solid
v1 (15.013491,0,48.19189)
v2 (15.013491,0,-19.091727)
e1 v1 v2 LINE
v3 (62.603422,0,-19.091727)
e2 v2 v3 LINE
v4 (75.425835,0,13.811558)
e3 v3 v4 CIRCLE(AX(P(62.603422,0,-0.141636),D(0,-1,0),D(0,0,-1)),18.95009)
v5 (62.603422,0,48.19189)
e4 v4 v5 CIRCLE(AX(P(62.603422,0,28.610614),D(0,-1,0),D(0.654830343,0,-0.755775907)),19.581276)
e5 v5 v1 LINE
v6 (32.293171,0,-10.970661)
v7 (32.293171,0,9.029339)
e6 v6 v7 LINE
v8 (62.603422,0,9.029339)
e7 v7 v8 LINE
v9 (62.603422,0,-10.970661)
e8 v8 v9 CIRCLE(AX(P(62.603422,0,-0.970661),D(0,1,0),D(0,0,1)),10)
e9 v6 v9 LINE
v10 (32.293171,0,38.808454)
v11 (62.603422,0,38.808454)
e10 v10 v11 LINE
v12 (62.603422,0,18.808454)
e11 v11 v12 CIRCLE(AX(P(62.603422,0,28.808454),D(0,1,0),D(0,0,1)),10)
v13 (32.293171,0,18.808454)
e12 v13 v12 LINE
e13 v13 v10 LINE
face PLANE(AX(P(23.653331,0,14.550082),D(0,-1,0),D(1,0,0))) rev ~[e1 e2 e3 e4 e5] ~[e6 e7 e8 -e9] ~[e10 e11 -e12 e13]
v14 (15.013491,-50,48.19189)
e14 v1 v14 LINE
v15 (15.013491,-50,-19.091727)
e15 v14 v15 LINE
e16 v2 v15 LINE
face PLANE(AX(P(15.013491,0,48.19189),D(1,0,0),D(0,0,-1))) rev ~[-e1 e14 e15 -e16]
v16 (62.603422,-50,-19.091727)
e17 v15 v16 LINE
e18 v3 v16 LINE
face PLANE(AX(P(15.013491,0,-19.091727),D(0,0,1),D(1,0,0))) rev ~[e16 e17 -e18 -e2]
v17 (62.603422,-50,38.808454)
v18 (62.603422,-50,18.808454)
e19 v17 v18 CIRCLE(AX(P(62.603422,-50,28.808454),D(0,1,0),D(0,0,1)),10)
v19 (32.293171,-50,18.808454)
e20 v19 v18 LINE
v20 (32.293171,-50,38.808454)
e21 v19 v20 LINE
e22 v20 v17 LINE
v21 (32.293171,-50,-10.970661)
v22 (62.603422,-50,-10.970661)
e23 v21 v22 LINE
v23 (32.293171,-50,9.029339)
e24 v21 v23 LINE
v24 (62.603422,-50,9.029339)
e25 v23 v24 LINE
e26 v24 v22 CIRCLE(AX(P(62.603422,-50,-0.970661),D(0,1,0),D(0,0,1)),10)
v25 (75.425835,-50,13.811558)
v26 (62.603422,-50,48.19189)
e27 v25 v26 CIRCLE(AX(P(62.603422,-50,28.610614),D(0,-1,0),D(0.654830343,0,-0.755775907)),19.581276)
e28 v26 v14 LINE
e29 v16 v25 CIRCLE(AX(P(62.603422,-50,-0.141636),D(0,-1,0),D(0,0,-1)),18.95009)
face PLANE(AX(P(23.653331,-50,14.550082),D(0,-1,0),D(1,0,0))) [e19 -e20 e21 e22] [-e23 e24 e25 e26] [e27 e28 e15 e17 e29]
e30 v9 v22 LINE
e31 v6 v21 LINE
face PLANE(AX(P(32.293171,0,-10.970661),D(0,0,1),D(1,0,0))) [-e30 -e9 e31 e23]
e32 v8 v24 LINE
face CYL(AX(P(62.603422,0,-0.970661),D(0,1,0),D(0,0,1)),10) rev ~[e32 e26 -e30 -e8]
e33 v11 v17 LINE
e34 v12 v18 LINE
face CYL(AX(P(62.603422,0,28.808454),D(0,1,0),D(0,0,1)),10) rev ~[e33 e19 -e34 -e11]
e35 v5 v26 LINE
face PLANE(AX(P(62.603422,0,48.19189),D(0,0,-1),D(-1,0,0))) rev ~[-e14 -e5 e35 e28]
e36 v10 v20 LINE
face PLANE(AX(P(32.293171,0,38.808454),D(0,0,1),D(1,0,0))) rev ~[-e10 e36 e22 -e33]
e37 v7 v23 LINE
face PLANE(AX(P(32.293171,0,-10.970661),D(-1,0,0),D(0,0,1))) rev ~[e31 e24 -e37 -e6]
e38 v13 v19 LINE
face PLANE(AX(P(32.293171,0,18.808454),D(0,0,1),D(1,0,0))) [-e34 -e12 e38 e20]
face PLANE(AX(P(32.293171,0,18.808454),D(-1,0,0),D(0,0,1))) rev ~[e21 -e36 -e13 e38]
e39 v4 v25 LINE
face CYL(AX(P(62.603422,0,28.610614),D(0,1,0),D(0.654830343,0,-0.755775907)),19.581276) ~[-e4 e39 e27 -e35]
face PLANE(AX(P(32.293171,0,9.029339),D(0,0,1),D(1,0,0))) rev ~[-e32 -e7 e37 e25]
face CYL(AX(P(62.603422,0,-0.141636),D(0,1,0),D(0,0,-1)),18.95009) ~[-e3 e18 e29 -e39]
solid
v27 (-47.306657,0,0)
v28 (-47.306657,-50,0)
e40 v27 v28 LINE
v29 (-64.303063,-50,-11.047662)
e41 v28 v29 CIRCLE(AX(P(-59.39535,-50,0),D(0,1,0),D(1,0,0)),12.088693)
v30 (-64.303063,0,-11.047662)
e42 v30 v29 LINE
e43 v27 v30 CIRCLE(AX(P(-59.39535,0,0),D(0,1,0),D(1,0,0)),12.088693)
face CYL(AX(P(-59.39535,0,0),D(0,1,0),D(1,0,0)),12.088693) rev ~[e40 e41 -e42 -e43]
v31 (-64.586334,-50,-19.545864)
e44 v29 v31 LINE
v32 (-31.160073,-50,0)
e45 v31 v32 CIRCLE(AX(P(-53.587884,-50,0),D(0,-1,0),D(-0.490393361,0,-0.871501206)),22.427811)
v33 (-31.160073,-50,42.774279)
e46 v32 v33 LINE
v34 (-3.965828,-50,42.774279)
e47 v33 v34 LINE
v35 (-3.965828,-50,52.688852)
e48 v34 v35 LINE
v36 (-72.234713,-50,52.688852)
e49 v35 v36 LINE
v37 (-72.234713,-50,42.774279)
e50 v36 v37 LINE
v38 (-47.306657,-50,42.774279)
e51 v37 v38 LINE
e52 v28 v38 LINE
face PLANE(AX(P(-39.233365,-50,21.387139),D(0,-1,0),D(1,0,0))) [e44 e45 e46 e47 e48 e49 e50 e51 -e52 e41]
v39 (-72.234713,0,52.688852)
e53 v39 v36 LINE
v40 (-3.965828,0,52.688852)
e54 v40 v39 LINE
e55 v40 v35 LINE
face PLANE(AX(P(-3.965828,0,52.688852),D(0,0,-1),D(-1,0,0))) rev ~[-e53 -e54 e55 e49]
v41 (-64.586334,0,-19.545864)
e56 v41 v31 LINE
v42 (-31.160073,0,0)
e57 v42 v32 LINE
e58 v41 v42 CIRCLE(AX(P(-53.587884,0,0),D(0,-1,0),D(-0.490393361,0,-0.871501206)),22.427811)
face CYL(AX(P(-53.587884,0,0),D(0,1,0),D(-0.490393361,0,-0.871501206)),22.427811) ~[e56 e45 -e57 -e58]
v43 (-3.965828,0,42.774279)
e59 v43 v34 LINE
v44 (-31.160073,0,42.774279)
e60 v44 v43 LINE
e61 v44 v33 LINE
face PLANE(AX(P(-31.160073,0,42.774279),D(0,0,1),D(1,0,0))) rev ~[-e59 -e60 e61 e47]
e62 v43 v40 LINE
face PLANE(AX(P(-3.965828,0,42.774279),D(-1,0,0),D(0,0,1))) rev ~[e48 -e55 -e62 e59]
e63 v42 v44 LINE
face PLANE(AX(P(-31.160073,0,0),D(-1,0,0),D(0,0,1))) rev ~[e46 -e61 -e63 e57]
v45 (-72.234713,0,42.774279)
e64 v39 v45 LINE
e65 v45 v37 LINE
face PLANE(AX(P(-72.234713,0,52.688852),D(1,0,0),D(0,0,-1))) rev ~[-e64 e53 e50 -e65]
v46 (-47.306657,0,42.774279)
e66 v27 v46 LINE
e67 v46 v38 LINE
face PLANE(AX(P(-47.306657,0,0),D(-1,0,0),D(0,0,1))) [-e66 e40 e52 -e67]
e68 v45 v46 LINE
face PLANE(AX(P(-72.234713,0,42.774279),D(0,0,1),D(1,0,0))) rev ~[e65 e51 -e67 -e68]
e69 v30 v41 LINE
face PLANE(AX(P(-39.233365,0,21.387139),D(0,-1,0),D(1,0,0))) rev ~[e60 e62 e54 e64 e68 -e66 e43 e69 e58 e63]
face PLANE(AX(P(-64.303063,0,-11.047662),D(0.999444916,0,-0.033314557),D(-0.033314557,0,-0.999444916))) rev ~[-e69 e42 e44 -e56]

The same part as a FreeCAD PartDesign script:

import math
import FreeCAD as App
import Part
import Sketcher
Q = App.Units.Quantity

doc = App.newDocument("Part")
body = doc.addObject("PartDesign::Body", "Body")

# Sketch on XZ plane
sketch1 = doc.addObject("Sketcher::SketchObject", "Sketch")
body.addObject(sketch1)
sketch1.AttachmentSupport = (doc.XZ_Plane, [""])
sketch1.MapMode = "FlatFace"
sketch1.addGeometry([
    Part.LineSegment(App.Vector(15, 48, 0), App.Vector(15, -19, 0)),  # 0
    Part.LineSegment(App.Vector(15, -19, 0), App.Vector(63, -19, 0)),  # 1
    Part.ArcOfCircle(Part.Circle(App.Vector(63, 0, 0), App.Vector(0, 0, 1), 19), math.radians(-90), math.radians(47)),  # 2
    Part.ArcOfCircle(Part.Circle(App.Vector(63, 29, 0), App.Vector(0, 0, 1), 20), math.radians(-49), math.radians(90)),  # 3
    Part.LineSegment(App.Vector(63, 48, 0), App.Vector(15, 48, 0)),  # 4
    Part.LineSegment(App.Vector(63, 19, 0), App.Vector(32, 19, 0)),  # 5
    Part.LineSegment(App.Vector(32, 19, 0), App.Vector(32, 39, 0)),  # 6
    Part.LineSegment(App.Vector(32, 39, 0), App.Vector(63, 39, 0)),  # 7
    Part.ArcOfCircle(Part.Circle(App.Vector(63, 29, 0), App.Vector(0, 0, 1), 10), math.radians(-90), math.radians(90)),  # 8
    Part.LineSegment(App.Vector(63, -11, 0), App.Vector(32, -11, 0)),  # 9
    Part.LineSegment(App.Vector(32, -11, 0), App.Vector(32, 9, 0)),  # 10
    Part.LineSegment(App.Vector(32, 9, 0), App.Vector(63, 9, 0)),  # 11
    Part.ArcOfCircle(Part.Circle(App.Vector(63, -1, 0), App.Vector(0, 0, 1), 10), math.radians(-90), math.radians(90)),  # 12
], False)
sketch1.addConstraint([
    Sketcher.Constraint("Coincident", 0, 2, 1, 1),
    Sketcher.Constraint("Tangent", 1, 2, 2, 1),
    Sketcher.Constraint("Coincident", 2, 2, 3, 1),
    Sketcher.Constraint("Tangent", 3, 2, 4, 1),
    Sketcher.Constraint("Coincident", 4, 2, 0, 1),
    Sketcher.Constraint("Coincident", 5, 2, 6, 1),
    Sketcher.Constraint("Coincident", 6, 2, 7, 1),
    Sketcher.Constraint("Tangent", 7, 2, 8, 2),
    Sketcher.Constraint("Tangent", 8, 1, 5, 1),
    Sketcher.Constraint("Coincident", 9, 2, 10, 1),
    Sketcher.Constraint("Coincident", 10, 2, 11, 1),
    Sketcher.Constraint("Tangent", 11, 2, 12, 2),
    Sketcher.Constraint("Tangent", 12, 1, 9, 1),
    Sketcher.Constraint("Vertical", 0),
    Sketcher.Constraint("Horizontal", 1),
    Sketcher.Constraint("Horizontal", 4),
    Sketcher.Constraint("Horizontal", 5),
    Sketcher.Constraint("Vertical", 6),
    Sketcher.Constraint("Horizontal", 7),
    Sketcher.Constraint("Horizontal", 9),
    Sketcher.Constraint("Vertical", 10),
    Sketcher.Constraint("Horizontal", 11),
    Sketcher.Constraint("Equal", 8, 12),
    Sketcher.Constraint("Vertical", 2, 3, 3, 3),
    Sketcher.Constraint("Vertical", 3, 3, 8, 3),
    Sketcher.Constraint("Vertical", 8, 3, 12, 3),
    Sketcher.Constraint("Vertical", 6, 2, 9, 2),
    Sketcher.Constraint("Radius", 8, Q("10 mm")),
    Sketcher.Constraint("Radius", 2, Q("18.95009 mm")),
    Sketcher.Constraint("Radius", 3, Q("19.581276 mm")),
    Sketcher.Constraint("DistanceX", 1, 1, 1, 2, Q("47.589931 mm")),
    Sketcher.Constraint("DistanceX", 5, 2, 5, 1, Q("30.310251 mm")),
    Sketcher.Constraint("DistanceY", 0, 2, 0, 1, Q("67.283617 mm")),
    Sketcher.Constraint("DistanceX", -1, 1, 2, 3, Q("62.603422 mm")),
    Sketcher.Constraint("DistanceY", 12, 3, -1, 1, Q("0.970661 mm")),
    Sketcher.Constraint("DistanceY", -1, 1, 3, 2, Q("48.19189 mm")),
    Sketcher.Constraint("DistanceY", 3, 3, 8, 3, Q("0.197839 mm")),
])
pad1 = doc.addObject("PartDesign::Pad", "Pad")
body.addObject(pad1)
pad1.Profile = sketch1
pad1.Length = 50
body2 = doc.addObject("PartDesign::Body", "Body001")

# Sketch on XZ plane
sketch2 = doc.addObject("Sketcher::SketchObject", "Sketch001")
body2.addObject(sketch2)
sketch2.AttachmentSupport = (doc.getObject("XZ_Plane001"), [""])
sketch2.MapMode = "FlatFace"
sketch2.addGeometry([
    Part.LineSegment(App.Vector(-47, 43, 0), App.Vector(-47, 0, 0)),  # 0
    Part.ArcOfCircle(Part.Circle(App.Vector(-59, 0, 0), App.Vector(0, 0, 1), 12), math.radians(-114), math.radians(0)),  # 1
    Part.LineSegment(App.Vector(-64, -11, 0), App.Vector(-65, -20, 0)),  # 2
    Part.ArcOfCircle(Part.Circle(App.Vector(-54, 0, 0), App.Vector(0, 0, 1), 22), math.radians(-119), math.radians(0)),  # 3
    Part.LineSegment(App.Vector(-31, 0, 0), App.Vector(-31, 43, 0)),  # 4
    Part.LineSegment(App.Vector(-31, 43, 0), App.Vector(-4, 43, 0)),  # 5
    Part.LineSegment(App.Vector(-4, 43, 0), App.Vector(-4, 53, 0)),  # 6
    Part.LineSegment(App.Vector(-4, 53, 0), App.Vector(-72, 53, 0)),  # 7
    Part.LineSegment(App.Vector(-72, 53, 0), App.Vector(-72, 43, 0)),  # 8
    Part.LineSegment(App.Vector(-72, 43, 0), App.Vector(-47, 43, 0)),  # 9
], False)
sketch2.addConstraint([
    Sketcher.Constraint("Tangent", 0, 2, 1, 2),
    Sketcher.Constraint("Coincident", 1, 1, 2, 1),
    Sketcher.Constraint("Coincident", 2, 2, 3, 1),
    Sketcher.Constraint("Tangent", 3, 2, 4, 1),
    Sketcher.Constraint("Coincident", 4, 2, 5, 1),
    Sketcher.Constraint("Coincident", 5, 2, 6, 1),
    Sketcher.Constraint("Coincident", 6, 2, 7, 1),
    Sketcher.Constraint("Coincident", 7, 2, 8, 1),
    Sketcher.Constraint("Coincident", 8, 2, 9, 1),
    Sketcher.Constraint("Coincident", 9, 2, 0, 1),
    Sketcher.Constraint("Vertical", 0),
    Sketcher.Constraint("Vertical", 4),
    Sketcher.Constraint("Horizontal", 5),
    Sketcher.Constraint("Vertical", 6),
    Sketcher.Constraint("Horizontal", 7),
    Sketcher.Constraint("Vertical", 8),
    Sketcher.Constraint("Horizontal", 9),
    Sketcher.Constraint("PointOnObject", 1, 3, -1),
    Sketcher.Constraint("PointOnObject", 3, 3, -1),
    Sketcher.Constraint("Horizontal", 5, 2, 8, 2),
    Sketcher.Constraint("Radius", 3, Q("22.427811 mm")),
    Sketcher.Constraint("Radius", 1, Q("12.088693 mm")),
    Sketcher.Constraint("DistanceY", 0, 2, 0, 1, Q("42.774279 mm")),
    Sketcher.Constraint("Distance", 2, Q("8.502922 mm")),
    Sketcher.Constraint("DistanceX", 5, 1, 5, 2, Q("27.194246 mm")),
    Sketcher.Constraint("DistanceX", 7, 2, 7, 1, Q("68.268885 mm")),
    Sketcher.Constraint("DistanceX", 9, 1, 9, 2, Q("24.928056 mm")),
    Sketcher.Constraint("DistanceY", 6, 1, 6, 2, Q("9.914573 mm")),
    Sketcher.Constraint("DistanceX", 1, 3, -1, 1, Q("59.39535 mm")),
    Sketcher.Constraint("DistanceX", 1, 1, 3, 3, Q("10.715179 mm")),
])
pad2 = doc.addObject("PartDesign::Pad", "Pad001")
body2.addObject(pad2)
pad2.Profile = sketch2
pad2.Length = 50

doc.recompute()
